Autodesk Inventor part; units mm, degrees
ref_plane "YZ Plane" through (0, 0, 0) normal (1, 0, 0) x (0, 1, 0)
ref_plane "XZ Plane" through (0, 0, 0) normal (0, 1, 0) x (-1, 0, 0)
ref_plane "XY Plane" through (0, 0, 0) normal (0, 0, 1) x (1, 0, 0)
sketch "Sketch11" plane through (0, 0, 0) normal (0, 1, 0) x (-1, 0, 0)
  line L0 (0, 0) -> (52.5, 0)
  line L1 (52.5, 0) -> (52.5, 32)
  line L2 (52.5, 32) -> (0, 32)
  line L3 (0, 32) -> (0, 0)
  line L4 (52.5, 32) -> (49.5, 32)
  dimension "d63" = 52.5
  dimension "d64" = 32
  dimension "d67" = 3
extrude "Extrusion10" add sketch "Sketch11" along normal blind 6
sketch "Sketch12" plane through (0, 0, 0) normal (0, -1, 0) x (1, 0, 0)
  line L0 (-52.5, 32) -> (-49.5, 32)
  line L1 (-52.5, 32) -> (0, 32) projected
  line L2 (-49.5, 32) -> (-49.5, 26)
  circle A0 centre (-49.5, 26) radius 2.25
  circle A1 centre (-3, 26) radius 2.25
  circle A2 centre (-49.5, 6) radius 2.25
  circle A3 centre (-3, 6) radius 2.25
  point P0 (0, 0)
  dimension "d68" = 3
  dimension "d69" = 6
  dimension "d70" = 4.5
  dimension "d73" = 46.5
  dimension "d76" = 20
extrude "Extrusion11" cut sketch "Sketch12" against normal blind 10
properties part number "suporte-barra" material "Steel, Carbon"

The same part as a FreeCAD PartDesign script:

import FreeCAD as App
import Part
import Sketcher
from FreeCAD import Vector


def add_polygon(sketch, points):
    """Adds a closed chain of lines whose ends are joined by coincident constraints."""
    first, n = sketch.GeometryCount, len(points)
    for a, b in zip(points, points[1:] + points[:1]):
        sketch.addGeometry(Part.LineSegment(App.Vector(*a, 0), App.Vector(*b, 0)), False)
    for i in range(n):
        sketch.addConstraint(Sketcher.Constraint("Coincident", first + i, 2, first + (i + 1) % n, 1))

doc = App.newDocument("Part")
body = doc.addObject("PartDesign::Body", "Body")

# Sketch on XZ plane
sketch1 = body.newObject("Sketcher::SketchObject", "Sketch")
sketch1.AttachmentSupport = (doc.getObject("XZ_Plane"), [""])
sketch1.MapMode = "FlatFace"
add_polygon(sketch1, [(0, 32), (0, 0), (-52, 0), (-52, 32)])  # lines 0-3
sketch1.addConstraint(Sketcher.Constraint("Vertical", 0))
sketch1.addConstraint(Sketcher.Constraint("Horizontal", 1))
sketch1.addConstraint(Sketcher.Constraint("Vertical", 2))
sketch1.addConstraint(Sketcher.Constraint("Horizontal", 3))
sketch1.addConstraint(Sketcher.Constraint("Coincident", 0, 2, -1, 1))
sketch1.addConstraint(Sketcher.Constraint("DistanceY", 0, 2, 0, 1, 32.0))
sketch1.addConstraint(Sketcher.Constraint("DistanceX", 1, 2, 1, 1, 52.5))
pad1 = body.newObject("PartDesign::Pad", "Pad")
pad1.Profile = sketch1
pad1.Length = 6
pad1.Reversed = True

# Sketch on XZ plane
sketch2 = body.newObject("Sketcher::SketchObject", "Sketch001")
sketch2.AttachmentSupport = (doc.getObject("XZ_Plane"), [""])
sketch2.MapMode = "FlatFace"
sketch2.addGeometry(Part.Circle(Vector(-49.5, 26, 0), Vector(0, 0, 1), 2.2), False)
sketch2.addGeometry(Part.Circle(Vector(-3, 26, 0), Vector(0, 0, 1), 2.2), False)
sketch2.addGeometry(Part.Circle(Vector(-49.5, 6, 0), Vector(0, 0, 1), 2.2), False)
sketch2.addGeometry(Part.Circle(Vector(-3, 6, 0), Vector(0, 0, 1), 2.2), False)
sketch2.addConstraint(Sketcher.Constraint("Equal", 0, 1))
sketch2.addConstraint(Sketcher.Constraint("Equal", 1, 2))
sketch2.addConstraint(Sketcher.Constraint("Equal", 2, 3))
sketch2.addConstraint(Sketcher.Constraint("Horizontal", 0, 3, 1, 3))
sketch2.addConstraint(Sketcher.Constraint("Horizontal", 2, 3, 3, 3))
sketch2.addConstraint(Sketcher.Constraint("Vertical", 0, 3, 2, 3))
sketch2.addConstraint(Sketcher.Constraint("Vertical", 1, 3, 3, 3))
sketch2.addConstraint(Sketcher.Constraint("Diameter", 0, 4.5))
sketch2.addConstraint(Sketcher.Constraint("DistanceX", 1, 3, -1, 1, 3.0))
sketch2.addConstraint(Sketcher.Constraint("DistanceY", -1, 1, 2, 3, 6.0))
sketch2.addConstraint(Sketcher.Constraint("DistanceY", 2, 3, 0, 3, 20.0))
sketch2.addConstraint(Sketcher.Constraint("DistanceX", 0, 3, 1, 3, 46.5))
pocket1 = body.newObject("PartDesign::Pocket", "Pocket")
pocket1.Profile = sketch2
pocket1.Length = 10

doc.recompute()
